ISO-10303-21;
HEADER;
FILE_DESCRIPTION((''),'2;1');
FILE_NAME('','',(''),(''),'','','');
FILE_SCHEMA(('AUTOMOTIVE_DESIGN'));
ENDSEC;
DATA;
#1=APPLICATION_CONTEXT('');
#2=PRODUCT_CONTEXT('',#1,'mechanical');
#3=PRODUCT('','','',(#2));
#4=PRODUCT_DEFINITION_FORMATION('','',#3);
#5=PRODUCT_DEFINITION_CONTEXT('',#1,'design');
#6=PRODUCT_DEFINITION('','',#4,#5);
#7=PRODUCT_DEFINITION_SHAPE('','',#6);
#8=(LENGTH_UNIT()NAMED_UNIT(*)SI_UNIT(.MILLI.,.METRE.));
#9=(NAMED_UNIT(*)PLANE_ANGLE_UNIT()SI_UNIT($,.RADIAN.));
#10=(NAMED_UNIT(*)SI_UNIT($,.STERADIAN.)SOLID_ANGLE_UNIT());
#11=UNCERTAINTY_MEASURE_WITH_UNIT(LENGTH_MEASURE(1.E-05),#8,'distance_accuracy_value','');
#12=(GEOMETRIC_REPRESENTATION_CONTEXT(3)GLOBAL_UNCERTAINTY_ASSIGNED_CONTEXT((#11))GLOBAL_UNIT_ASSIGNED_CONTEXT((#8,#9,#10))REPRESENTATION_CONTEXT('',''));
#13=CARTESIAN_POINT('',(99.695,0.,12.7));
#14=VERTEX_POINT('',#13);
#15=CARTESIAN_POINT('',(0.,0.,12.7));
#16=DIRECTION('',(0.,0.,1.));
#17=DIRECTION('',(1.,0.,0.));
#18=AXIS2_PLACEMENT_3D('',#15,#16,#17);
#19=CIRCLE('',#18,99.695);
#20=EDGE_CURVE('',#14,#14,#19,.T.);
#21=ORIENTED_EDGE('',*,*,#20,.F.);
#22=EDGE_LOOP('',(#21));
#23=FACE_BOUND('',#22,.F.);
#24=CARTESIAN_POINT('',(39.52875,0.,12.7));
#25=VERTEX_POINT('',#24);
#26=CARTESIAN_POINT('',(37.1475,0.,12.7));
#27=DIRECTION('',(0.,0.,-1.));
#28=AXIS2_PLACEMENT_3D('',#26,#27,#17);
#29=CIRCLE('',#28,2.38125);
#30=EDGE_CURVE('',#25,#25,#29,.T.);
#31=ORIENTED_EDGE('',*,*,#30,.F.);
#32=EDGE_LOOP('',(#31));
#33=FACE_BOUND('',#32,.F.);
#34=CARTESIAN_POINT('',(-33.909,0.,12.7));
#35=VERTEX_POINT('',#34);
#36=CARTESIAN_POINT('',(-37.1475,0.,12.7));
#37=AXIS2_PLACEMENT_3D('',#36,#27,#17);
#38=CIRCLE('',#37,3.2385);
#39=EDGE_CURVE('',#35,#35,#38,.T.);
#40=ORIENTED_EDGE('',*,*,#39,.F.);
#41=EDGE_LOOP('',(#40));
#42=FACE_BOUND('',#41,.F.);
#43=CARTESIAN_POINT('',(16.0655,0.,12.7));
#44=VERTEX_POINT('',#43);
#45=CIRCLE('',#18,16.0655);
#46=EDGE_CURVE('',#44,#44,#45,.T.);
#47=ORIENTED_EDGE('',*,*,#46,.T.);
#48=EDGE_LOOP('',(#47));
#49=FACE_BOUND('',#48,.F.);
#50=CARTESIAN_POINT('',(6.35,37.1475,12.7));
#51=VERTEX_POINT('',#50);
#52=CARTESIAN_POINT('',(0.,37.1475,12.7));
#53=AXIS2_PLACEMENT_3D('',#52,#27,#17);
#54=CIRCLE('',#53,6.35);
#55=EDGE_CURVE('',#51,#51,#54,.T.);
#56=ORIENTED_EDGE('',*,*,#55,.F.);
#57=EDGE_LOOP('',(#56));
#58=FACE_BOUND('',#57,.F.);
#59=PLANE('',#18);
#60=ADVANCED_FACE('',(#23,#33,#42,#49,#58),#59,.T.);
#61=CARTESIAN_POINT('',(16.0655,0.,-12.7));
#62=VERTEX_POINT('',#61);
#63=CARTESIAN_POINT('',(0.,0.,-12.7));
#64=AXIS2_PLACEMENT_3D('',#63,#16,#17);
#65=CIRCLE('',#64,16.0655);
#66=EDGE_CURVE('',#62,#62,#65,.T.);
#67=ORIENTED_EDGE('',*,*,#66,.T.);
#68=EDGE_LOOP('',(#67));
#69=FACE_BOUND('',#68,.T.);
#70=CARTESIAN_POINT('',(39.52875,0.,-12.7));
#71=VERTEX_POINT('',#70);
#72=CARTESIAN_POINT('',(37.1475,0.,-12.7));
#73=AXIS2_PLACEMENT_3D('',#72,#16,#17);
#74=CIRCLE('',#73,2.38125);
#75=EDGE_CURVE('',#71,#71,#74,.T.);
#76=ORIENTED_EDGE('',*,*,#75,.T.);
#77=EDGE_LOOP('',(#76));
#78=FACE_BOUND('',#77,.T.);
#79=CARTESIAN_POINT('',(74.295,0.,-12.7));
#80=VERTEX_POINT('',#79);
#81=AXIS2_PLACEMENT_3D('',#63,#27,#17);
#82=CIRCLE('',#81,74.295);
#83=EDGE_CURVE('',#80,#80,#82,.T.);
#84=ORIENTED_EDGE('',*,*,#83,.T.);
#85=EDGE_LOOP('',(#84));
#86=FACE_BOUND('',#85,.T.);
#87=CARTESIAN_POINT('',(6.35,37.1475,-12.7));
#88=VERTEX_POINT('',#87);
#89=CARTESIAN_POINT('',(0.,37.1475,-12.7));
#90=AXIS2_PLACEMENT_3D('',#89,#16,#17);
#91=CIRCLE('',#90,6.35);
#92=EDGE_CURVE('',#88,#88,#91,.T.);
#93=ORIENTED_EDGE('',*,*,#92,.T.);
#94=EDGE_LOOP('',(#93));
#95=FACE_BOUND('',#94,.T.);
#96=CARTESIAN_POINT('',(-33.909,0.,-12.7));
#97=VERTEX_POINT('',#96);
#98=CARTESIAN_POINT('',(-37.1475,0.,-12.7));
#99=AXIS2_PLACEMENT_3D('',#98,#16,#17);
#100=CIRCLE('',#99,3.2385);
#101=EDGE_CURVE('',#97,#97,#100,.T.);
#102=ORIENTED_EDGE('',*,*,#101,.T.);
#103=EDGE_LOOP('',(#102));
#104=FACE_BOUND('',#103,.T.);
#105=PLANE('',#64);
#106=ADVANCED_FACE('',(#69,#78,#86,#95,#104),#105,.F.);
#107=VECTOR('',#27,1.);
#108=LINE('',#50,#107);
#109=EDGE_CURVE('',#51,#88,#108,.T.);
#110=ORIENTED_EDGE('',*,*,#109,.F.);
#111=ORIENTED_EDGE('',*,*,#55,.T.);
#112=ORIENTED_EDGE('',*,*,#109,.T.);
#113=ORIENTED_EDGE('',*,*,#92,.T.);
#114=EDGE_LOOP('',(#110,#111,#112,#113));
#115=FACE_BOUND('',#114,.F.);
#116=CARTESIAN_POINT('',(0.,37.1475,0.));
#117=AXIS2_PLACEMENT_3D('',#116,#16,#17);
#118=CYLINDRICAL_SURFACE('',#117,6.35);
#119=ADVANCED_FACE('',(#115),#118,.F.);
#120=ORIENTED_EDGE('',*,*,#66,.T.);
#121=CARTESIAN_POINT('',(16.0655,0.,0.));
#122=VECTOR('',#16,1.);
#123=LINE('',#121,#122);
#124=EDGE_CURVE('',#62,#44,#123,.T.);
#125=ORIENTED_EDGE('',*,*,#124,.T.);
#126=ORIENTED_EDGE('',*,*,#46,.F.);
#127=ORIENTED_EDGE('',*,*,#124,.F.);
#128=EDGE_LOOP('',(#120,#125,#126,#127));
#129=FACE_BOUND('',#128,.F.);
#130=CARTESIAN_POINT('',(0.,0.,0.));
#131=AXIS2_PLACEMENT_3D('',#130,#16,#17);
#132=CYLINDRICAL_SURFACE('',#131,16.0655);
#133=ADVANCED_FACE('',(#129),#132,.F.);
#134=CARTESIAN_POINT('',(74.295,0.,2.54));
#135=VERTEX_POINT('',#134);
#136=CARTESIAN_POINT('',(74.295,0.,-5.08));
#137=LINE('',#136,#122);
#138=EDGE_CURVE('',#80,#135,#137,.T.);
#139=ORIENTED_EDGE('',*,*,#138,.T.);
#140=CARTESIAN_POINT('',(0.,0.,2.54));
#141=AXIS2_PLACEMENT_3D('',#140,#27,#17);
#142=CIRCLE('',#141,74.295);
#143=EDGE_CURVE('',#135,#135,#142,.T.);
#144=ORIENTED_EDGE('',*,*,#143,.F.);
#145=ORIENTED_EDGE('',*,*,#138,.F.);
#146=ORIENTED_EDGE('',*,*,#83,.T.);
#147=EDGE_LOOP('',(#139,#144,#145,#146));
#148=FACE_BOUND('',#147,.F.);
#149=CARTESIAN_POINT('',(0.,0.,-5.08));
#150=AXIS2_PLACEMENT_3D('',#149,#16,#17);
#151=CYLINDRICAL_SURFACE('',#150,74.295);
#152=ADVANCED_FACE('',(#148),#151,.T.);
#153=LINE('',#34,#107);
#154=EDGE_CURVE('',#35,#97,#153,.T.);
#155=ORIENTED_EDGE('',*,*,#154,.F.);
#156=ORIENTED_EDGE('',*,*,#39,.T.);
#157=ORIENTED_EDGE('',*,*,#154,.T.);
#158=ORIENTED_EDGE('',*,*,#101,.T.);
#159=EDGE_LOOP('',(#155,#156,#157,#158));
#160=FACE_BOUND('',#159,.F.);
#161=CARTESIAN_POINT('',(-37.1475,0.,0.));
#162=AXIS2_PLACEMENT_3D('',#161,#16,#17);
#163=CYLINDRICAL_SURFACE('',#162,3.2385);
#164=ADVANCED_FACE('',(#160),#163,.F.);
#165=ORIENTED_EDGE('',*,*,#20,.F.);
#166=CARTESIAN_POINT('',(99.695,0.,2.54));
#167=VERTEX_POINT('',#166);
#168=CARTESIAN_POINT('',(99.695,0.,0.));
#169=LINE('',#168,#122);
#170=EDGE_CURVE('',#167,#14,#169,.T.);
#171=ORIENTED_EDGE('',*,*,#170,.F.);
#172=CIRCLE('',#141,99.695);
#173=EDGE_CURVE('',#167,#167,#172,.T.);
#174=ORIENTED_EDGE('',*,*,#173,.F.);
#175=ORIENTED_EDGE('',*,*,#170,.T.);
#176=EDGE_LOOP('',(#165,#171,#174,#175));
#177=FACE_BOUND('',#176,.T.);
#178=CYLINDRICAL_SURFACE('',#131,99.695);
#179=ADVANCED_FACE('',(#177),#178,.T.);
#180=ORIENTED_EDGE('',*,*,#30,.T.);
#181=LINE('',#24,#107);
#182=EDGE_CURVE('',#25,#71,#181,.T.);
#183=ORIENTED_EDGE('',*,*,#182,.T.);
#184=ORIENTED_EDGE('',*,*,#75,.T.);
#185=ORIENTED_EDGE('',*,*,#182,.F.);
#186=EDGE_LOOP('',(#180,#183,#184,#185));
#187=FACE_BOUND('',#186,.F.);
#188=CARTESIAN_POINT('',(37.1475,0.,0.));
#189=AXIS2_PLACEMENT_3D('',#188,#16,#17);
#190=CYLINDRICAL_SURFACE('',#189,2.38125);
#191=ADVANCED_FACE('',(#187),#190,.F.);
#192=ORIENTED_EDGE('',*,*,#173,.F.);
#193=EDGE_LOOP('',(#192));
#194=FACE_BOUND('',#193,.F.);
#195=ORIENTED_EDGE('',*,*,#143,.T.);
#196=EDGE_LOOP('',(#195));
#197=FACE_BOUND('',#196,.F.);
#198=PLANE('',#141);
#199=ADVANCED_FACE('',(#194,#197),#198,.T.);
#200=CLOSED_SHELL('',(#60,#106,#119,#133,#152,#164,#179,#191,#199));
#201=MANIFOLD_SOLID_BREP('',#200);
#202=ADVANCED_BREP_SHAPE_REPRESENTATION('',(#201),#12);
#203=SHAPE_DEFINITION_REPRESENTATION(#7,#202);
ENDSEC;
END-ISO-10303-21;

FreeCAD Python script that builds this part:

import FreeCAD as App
import Part
import Sketcher
from FreeCAD import Vector
Q = App.Units.Quantity


def add_polygon(sketch, points):
    """Adds a closed chain of lines whose ends are joined by coincident constraints."""
    first, n = sketch.GeometryCount, len(points)
    for a, b in zip(points, points[1:] + points[:1]):
        sketch.addGeometry(Part.LineSegment(App.Vector(*a, 0), App.Vector(*b, 0)), False)
    for i in range(n):
        sketch.addConstraint(Sketcher.Constraint("Coincident", first + i, 2, first + (i + 1) % n, 1))

doc = App.newDocument("Part")
body = doc.addObject("PartDesign::Body", "Body")

sketch1 = body.newObject("Sketcher::SketchObject", "Sketch")
sketch1.AttachmentSupport = (doc.getObject("XZ_Plane"), [""])
sketch1.MapMode = "FlatFace"
add_polygon(sketch1, [(16, 13), (16, -13), (100, -13), (100, 13)])
sketch1.addConstraint(Sketcher.Constraint("Vertical", 0))
sketch1.addConstraint(Sketcher.Constraint("Horizontal", 1))
sketch1.addConstraint(Sketcher.Constraint("Vertical", 2))
sketch1.addConstraint(Sketcher.Constraint("Horizontal", 3))
sketch1.addConstraint(Sketcher.Constraint("DistanceY", 0, 2, 0, 1, Q("1 in")))
sketch1.addConstraint(Sketcher.Constraint("DistanceY", 0, 2, -1, 1, Q("0.5 in")))
sketch1.addConstraint(Sketcher.Constraint("DistanceX", 1, 1, 1, 2, Q("3.2925 in")))
sketch1.addConstraint(Sketcher.Constraint("DistanceX", -1, 1, 1, 2, Q("3.925 in")))
revolution = body.newObject("PartDesign::Revolution", "Revolution")
revolution.Profile = sketch1
revolution.ReferenceAxis = (sketch1, ["V_Axis"])
revolution.Angle = 360

sketch2 = body.newObject("Sketcher::SketchObject", "Sketch001")
sketch2.AttachmentSupport = (doc.getObject("XY_Plane"), [""])
sketch2.MapMode = "FlatFace"
sketch2.addGeometry(Part.Circle(Vector(37.1, 0, 0), Vector(0, 0, 1), 2.4), False)
sketch2.addGeometry(Part.Circle(Vector(-37.1, 0, 0), Vector(0, 0, 1), 3.2), False)
sketch2.addGeometry(Part.Circle(Vector(0, 37.1, 0), Vector(0, 0, 1), 6.3), False)
sketch2.addConstraint(Sketcher.Constraint("Symmetric", 0, 3, 1, 3, -1, 1))
sketch2.addConstraint(Sketcher.Constraint("PointOnObject", 0, 3, -1))
sketch2.addConstraint(Sketcher.Constraint("PointOnObject", 2, 3, -2))
sketch2.addConstraint(Sketcher.Constraint("Diameter", 2, Q("0.5 in")))
sketch2.addConstraint(Sketcher.Constraint("Diameter", 0, Q("0.1875 in")))
sketch2.addConstraint(Sketcher.Constraint("Diameter", 1, Q("0.255 in")))
sketch2.addConstraint(Sketcher.Constraint("DistanceX", 1, 3, 0, 3, Q("2.925 in")))
sketch2.addConstraint(Sketcher.Constraint("DistanceY", -1, 1, 2, 3, Q("1.4625 in")))
pocket1 = body.newObject("PartDesign::Pocket", "Pocket")
pocket1.Profile = sketch2
pocket1.Type = "ThroughAll"
pocket1.Midplane = True

sketch3 = body.newObject("Sketcher::SketchObject", "Sketch002")
sketch3.AttachmentSupport = (doc.getObject("XZ_Plane"), [""])
sketch3.MapMode = "FlatFace"
add_polygon(sketch3, [(74, 3), (74, -13), (100, -13), (100, 3)])
sketch3.addConstraint(Sketcher.Constraint("Vertical", 0))
sketch3.addConstraint(Sketcher.Constraint("Horizontal", 1))
sketch3.addConstraint(Sketcher.Constraint("Vertical", 2))
sketch3.addConstraint(Sketcher.Constraint("Horizontal", 3))
sketch3.addConstraint(Sketcher.Constraint("DistanceX", 1, 1, 1, 2, Q("1 in")))
sketch3.addConstraint(Sketcher.Constraint("DistanceY", 0, 2, 0, 1, Q("0.6 in")))
sketch3.addConstraint(Sketcher.Constraint("DistanceY", 0, 2, -1, 1, Q("0.5 in")))
sketch3.addConstraint(Sketcher.Constraint("DistanceX", -1, 1, 0, 2, Q("2.925 in")))
groove = body.newObject("PartDesign::Groove", "Groove")
groove.Profile = sketch3
groove.ReferenceAxis = (sketch3, ["V_Axis"])
groove.Angle = 360

doc.recompute()
